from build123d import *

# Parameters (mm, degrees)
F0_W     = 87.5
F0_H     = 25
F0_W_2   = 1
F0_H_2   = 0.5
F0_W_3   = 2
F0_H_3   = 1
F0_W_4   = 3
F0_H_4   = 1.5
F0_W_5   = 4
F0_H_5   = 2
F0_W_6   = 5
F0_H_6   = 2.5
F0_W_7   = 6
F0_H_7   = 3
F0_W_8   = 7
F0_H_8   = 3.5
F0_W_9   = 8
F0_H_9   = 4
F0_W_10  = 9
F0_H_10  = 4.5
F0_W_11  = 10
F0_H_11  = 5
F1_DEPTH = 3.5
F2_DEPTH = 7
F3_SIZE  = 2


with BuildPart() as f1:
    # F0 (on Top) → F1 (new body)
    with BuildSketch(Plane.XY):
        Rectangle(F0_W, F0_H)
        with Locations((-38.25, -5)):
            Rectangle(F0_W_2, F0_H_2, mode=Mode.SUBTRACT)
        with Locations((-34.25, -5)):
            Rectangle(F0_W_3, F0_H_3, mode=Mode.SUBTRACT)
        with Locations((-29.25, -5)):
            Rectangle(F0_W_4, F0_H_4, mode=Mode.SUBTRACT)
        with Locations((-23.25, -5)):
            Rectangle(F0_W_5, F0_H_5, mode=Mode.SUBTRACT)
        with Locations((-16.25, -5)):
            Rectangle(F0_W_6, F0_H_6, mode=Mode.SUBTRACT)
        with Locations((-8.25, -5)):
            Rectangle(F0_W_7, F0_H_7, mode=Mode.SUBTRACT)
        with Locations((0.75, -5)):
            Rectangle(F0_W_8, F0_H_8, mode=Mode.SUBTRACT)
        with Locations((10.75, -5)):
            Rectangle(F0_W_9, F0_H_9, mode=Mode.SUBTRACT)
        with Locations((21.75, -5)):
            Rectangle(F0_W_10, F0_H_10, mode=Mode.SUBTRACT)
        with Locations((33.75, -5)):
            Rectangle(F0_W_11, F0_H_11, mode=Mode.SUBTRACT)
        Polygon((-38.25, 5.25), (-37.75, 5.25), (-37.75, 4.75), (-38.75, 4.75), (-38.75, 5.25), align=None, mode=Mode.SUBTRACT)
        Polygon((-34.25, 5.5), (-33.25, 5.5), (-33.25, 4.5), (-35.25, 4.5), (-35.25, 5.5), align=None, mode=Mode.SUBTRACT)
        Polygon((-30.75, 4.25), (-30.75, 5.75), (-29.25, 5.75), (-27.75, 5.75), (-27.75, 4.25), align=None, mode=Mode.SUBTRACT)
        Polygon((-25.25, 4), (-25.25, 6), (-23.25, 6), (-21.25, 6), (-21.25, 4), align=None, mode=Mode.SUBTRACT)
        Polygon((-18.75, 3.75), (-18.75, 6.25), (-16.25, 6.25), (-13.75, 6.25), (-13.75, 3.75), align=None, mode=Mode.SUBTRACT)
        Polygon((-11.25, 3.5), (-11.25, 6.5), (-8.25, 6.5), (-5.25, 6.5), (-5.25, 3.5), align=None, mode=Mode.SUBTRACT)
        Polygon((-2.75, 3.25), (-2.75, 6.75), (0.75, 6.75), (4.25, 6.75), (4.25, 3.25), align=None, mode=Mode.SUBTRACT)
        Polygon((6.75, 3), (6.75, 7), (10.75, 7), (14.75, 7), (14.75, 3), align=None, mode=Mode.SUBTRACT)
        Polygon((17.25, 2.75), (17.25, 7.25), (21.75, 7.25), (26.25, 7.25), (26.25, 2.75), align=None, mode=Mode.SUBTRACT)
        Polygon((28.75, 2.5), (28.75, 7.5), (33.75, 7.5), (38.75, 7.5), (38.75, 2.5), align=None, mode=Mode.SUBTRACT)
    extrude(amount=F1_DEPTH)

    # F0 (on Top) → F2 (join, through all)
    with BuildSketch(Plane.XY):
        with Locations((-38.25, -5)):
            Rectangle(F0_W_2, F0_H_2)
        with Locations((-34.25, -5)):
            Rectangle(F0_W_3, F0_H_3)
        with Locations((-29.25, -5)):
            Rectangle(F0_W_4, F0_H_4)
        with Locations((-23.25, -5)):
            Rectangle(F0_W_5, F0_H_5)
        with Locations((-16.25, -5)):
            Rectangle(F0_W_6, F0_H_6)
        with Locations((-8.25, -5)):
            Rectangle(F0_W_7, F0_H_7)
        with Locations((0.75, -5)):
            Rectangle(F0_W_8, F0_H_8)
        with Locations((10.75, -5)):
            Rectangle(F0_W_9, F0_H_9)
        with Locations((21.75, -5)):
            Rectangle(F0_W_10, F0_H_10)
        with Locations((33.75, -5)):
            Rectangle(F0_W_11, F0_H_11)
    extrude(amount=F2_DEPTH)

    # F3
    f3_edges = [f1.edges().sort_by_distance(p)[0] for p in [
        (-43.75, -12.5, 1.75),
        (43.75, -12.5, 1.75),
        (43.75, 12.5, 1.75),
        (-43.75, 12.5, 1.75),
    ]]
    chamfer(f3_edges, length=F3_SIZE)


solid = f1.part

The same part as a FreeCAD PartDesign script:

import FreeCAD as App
import Part
import Sketcher

V = App.Vector


def edges_at(feature, points):
    """Names of the edges that pass closest to the given points."""
    edges = feature.Shape.Edges
    near = lambda p: min(range(len(edges)), key=lambda i: edges[i].distToShape(Part.Vertex(*p))[0])
    return sorted({f"Edge{near(p) + 1}" for p in points})

doc = App.newDocument("Part")
body = doc.addObject("PartDesign::Body", "Body")

sketch1 = body.newObject("Sketcher::SketchObject", "Sketch")
sketch1.AttachmentSupport = (doc.getObject("XY_Plane"), [""])
sketch1.MapMode = "FlatFace"
sketch1.addGeometry([
    Part.LineSegment(V(-43.8, 12.5, 0), V(-43.8, -12.5, 0)),
    Part.LineSegment(V(-43.8, -12.5, 0), V(43.8, -12.5, 0)),
    Part.LineSegment(V(43.8, -12.5, 0), V(43.8, 12.5, 0)),
    Part.LineSegment(V(43.8, 12.5, 0), V(-43.8, 12.5, 0)),
    Part.LineSegment(V(-37.8, -5.2, 0), V(-38.8, -5.2, 0)),
    Part.LineSegment(V(-38.8, -5.2, 0), V(-38.8, -4.8, 0)),
    Part.LineSegment(V(-38.8, -4.8, 0), V(-37.8, -4.8, 0)),
    Part.LineSegment(V(-37.8, -4.8, 0), V(-37.8, -5.2, 0)),
    Part.LineSegment(V(-33.2, -5.5, 0), V(-35.2, -5.5, 0)),
    Part.LineSegment(V(-35.2, -5.5, 0), V(-35.2, -4.5, 0)),
    Part.LineSegment(V(-35.2, -4.5, 0), V(-33.2, -4.5, 0)),
    Part.LineSegment(V(-33.2, -4.5, 0), V(-33.2, -5.5, 0)),
    Part.LineSegment(V(-27.8, -5.8, 0), V(-30.8, -5.8, 0)),
    Part.LineSegment(V(-30.8, -5.8, 0), V(-30.8, -4.2, 0)),
    Part.LineSegment(V(-30.8, -4.2, 0), V(-27.8, -4.2, 0)),
    Part.LineSegment(V(-27.8, -4.2, 0), V(-27.8, -5.8, 0)),
    Part.LineSegment(V(-21.2, -6, 0), V(-25.2, -6, 0)),
    Part.LineSegment(V(-25.2, -6, 0), V(-25.2, -4, 0)),
    Part.LineSegment(V(-25.2, -4, 0), V(-21.2, -4, 0)),
    Part.LineSegment(V(-21.2, -4, 0), V(-21.2, -6, 0)),
    Part.LineSegment(V(-13.8, -6.2, 0), V(-18.8, -6.2, 0)),
    Part.LineSegment(V(-18.8, -6.2, 0), V(-18.8, -3.8, 0)),
    Part.LineSegment(V(-18.8, -3.8, 0), V(-13.8, -3.8, 0)),
    Part.LineSegment(V(-13.8, -3.8, 0), V(-13.8, -6.2, 0)),
    Part.LineSegment(V(-5.2, -6.5, 0), V(-11.2, -6.5, 0)),
    Part.LineSegment(V(-11.2, -6.5, 0), V(-11.2, -3.5, 0)),
    Part.LineSegment(V(-11.2, -3.5, 0), V(-5.2, -3.5, 0)),
    Part.LineSegment(V(-5.2, -3.5, 0), V(-5.2, -6.5, 0)),
    Part.LineSegment(V(4.2, -6.8, 0), V(-2.8, -6.8, 0)),
    Part.LineSegment(V(-2.8, -6.8, 0), V(-2.8, -3.2, 0)),
    Part.LineSegment(V(-2.8, -3.2, 0), V(4.2, -3.2, 0)),
    Part.LineSegment(V(4.2, -3.2, 0), V(4.2, -6.8, 0)),
    Part.LineSegment(V(14.8, -7, 0), V(6.8, -7, 0)),
    Part.LineSegment(V(6.8, -7, 0), V(6.8, -3, 0)),
    Part.LineSegment(V(6.8, -3, 0), V(14.8, -3, 0)),
    Part.LineSegment(V(14.8, -3, 0), V(14.8, -7, 0)),
    Part.LineSegment(V(26.2, -7.2, 0), V(17.2, -7.2, 0)),
    Part.LineSegment(V(17.2, -7.2, 0), V(17.2, -2.8, 0)),
    Part.LineSegment(V(17.2, -2.8, 0), V(26.2, -2.8, 0)),
    Part.LineSegment(V(26.2, -2.8, 0), V(26.2, -7.2, 0)),
    Part.LineSegment(V(38.8, -7.5, 0), V(28.8, -7.5, 0)),
    Part.LineSegment(V(28.8, -7.5, 0), V(28.8, -2.5, 0)),
    Part.LineSegment(V(28.8, -2.5, 0), V(38.8, -2.5, 0)),
    Part.LineSegment(V(38.8, -2.5, 0), V(38.8, -7.5, 0)),
    Part.LineSegment(V(-38.8, 5.2, 0), V(-37.8, 5.2, 0)),
    Part.LineSegment(V(-37.8, 5.2, 0), V(-37.8, 4.8, 0)),
    Part.LineSegment(V(-37.8, 4.8, 0), V(-38.8, 4.8, 0)),
    Part.LineSegment(V(-38.8, 4.8, 0), V(-38.8, 5.2, 0)),
    Part.LineSegment(V(-35.2, 5.5, 0), V(-33.2, 5.5, 0)),
    Part.LineSegment(V(-33.2, 5.5, 0), V(-33.2, 4.5, 0)),
    Part.LineSegment(V(-33.2, 4.5, 0), V(-35.2, 4.5, 0)),
    Part.LineSegment(V(-35.2, 4.5, 0), V(-35.2, 5.5, 0)),
    Part.LineSegment(V(-27.8, 4.2, 0), V(-30.8, 4.2, 0)),
    Part.LineSegment(V(-30.8, 4.2, 0), V(-30.8, 5.8, 0)),
    Part.LineSegment(V(-30.8, 5.8, 0), V(-27.8, 5.8, 0)),
    Part.LineSegment(V(-27.8, 5.8, 0), V(-27.8, 4.2, 0)),
    Part.LineSegment(V(-21.2, 4, 0), V(-25.2, 4, 0)),
    Part.LineSegment(V(-25.2, 4, 0), V(-25.2, 6, 0)),
    Part.LineSegment(V(-25.2, 6, 0), V(-21.2, 6, 0)),
    Part.LineSegment(V(-21.2, 6, 0), V(-21.2, 4, 0)),
    Part.LineSegment(V(-13.8, 3.8, 0), V(-18.8, 3.8, 0)),
    Part.LineSegment(V(-18.8, 3.8, 0), V(-18.8, 6.2, 0)),
    Part.LineSegment(V(-18.8, 6.2, 0), V(-13.8, 6.2, 0)),
    Part.LineSegment(V(-13.8, 6.2, 0), V(-13.8, 3.8, 0)),
    Part.LineSegment(V(-5.2, 3.5, 0), V(-11.2, 3.5, 0)),
    Part.LineSegment(V(-11.2, 3.5, 0), V(-11.2, 6.5, 0)),
    Part.LineSegment(V(-11.2, 6.5, 0), V(-5.2, 6.5, 0)),
    Part.LineSegment(V(-5.2, 6.5, 0), V(-5.2, 3.5, 0)),
    Part.LineSegment(V(4.2, 3.2, 0), V(-2.8, 3.2, 0)),
    Part.LineSegment(V(-2.8, 3.2, 0), V(-2.8, 6.8, 0)),
    Part.LineSegment(V(-2.8, 6.8, 0), V(4.2, 6.8, 0)),
    Part.LineSegment(V(4.2, 6.8, 0), V(4.2, 3.2, 0)),
    Part.LineSegment(V(14.8, 3, 0), V(6.8, 3, 0)),
    Part.LineSegment(V(6.8, 3, 0), V(6.8, 7, 0)),
    Part.LineSegment(V(6.8, 7, 0), V(14.8, 7, 0)),
    Part.LineSegment(V(14.8, 7, 0), V(14.8, 3, 0)),
    Part.LineSegment(V(26.2, 2.8, 0), V(17.2, 2.8, 0)),
    Part.LineSegment(V(17.2, 2.8, 0), V(17.2, 7.2, 0)),
    Part.LineSegment(V(17.2, 7.2, 0), V(26.2, 7.2, 0)),
    Part.LineSegment(V(26.2, 7.2, 0), V(26.2, 2.8, 0)),
    Part.LineSegment(V(38.8, 2.5, 0), V(28.8, 2.5, 0)),
    Part.LineSegment(V(28.8, 2.5, 0), V(28.8, 7.5, 0)),
    Part.LineSegment(V(28.8, 7.5, 0), V(38.8, 7.5, 0)),
    Part.LineSegment(V(38.8, 7.5, 0), V(38.8, 2.5, 0)),
], False)
sketch1.addConstraint([
    Sketcher.Constraint("Coincident", 0, 2, 1, 1),
    Sketcher.Constraint("Coincident", 1, 2, 2, 1),
    Sketcher.Constraint("Coincident", 2, 2, 3, 1),
    Sketcher.Constraint("Coincident", 3, 2, 0, 1),
    Sketcher.Constraint("Coincident", 4, 2, 5, 1),
    Sketcher.Constraint("Coincident", 5, 2, 6, 1),
    Sketcher.Constraint("Coincident", 6, 2, 7, 1),
    Sketcher.Constraint("Coincident", 7, 2, 4, 1),
    Sketcher.Constraint("Coincident", 8, 2, 9, 1),
    Sketcher.Constraint("Coincident", 9, 2, 10, 1),
    Sketcher.Constraint("Coincident", 10, 2, 11, 1),
    Sketcher.Constraint("Coincident", 11, 2, 8, 1),
    Sketcher.Constraint("Coincident", 12, 2, 13, 1),
    Sketcher.Constraint("Coincident", 13, 2, 14, 1),
    Sketcher.Constraint("Coincident", 14, 2, 15, 1),
    Sketcher.Constraint("Coincident", 15, 2, 12, 1),
    Sketcher.Constraint("Coincident", 16, 2, 17, 1),
    Sketcher.Constraint("Coincident", 17, 2, 18, 1),
    Sketcher.Constraint("Coincident", 18, 2, 19, 1),
    Sketcher.Constraint("Coincident", 19, 2, 16, 1),
    Sketcher.Constraint("Coincident", 20, 2, 21, 1),
    Sketcher.Constraint("Coincident", 21, 2, 22, 1),
    Sketcher.Constraint("Coincident", 22, 2, 23, 1),
    Sketcher.Constraint("Coincident", 23, 2, 20, 1),
    Sketcher.Constraint("Coincident", 24, 2, 25, 1),
    Sketcher.Constraint("Coincident", 25, 2, 26, 1),
    Sketcher.Constraint("Coincident", 26, 2, 27, 1),
    Sketcher.Constraint("Coincident", 27, 2, 24, 1),
    Sketcher.Constraint("Coincident", 28, 2, 29, 1),
    Sketcher.Constraint("Coincident", 29, 2, 30, 1),
    Sketcher.Constraint("Coincident", 30, 2, 31, 1),
    Sketcher.Constraint("Coincident", 31, 2, 28, 1),
    Sketcher.Constraint("Coincident", 32, 2, 33, 1),
    Sketcher.Constraint("Coincident", 33, 2, 34, 1),
    Sketcher.Constraint("Coincident", 34, 2, 35, 1),
    Sketcher.Constraint("Coincident", 35, 2, 32, 1),
    Sketcher.Constraint("Coincident", 36, 2, 37, 1),
    Sketcher.Constraint("Coincident", 37, 2, 38, 1),
    Sketcher.Constraint("Coincident", 38, 2, 39, 1),
    Sketcher.Constraint("Coincident", 39, 2, 36, 1),
    Sketcher.Constraint("Coincident", 40, 2, 41, 1),
    Sketcher.Constraint("Coincident", 41, 2, 42, 1),
    Sketcher.Constraint("Coincident", 42, 2, 43, 1),
    Sketcher.Constraint("Coincident", 43, 2, 40, 1),
    Sketcher.Constraint("Coincident", 44, 2, 45, 1),
    Sketcher.Constraint("Coincident", 45, 2, 46, 1),
    Sketcher.Constraint("Coincident", 46, 2, 47, 1),
    Sketcher.Constraint("Coincident", 47, 2, 44, 1),
    Sketcher.Constraint("Coincident", 48, 2, 49, 1),
    Sketcher.Constraint("Coincident", 49, 2, 50, 1),
    Sketcher.Constraint("Coincident", 50, 2, 51, 1),
    Sketcher.Constraint("Coincident", 51, 2, 48, 1),
    Sketcher.Constraint("Coincident", 52, 2, 53, 1),
    Sketcher.Constraint("Coincident", 53, 2, 54, 1),
    Sketcher.Constraint("Coincident", 54, 2, 55, 1),
    Sketcher.Constraint("Coincident", 55, 2, 52, 1),
    Sketcher.Constraint("Coincident", 56, 2, 57, 1),
    Sketcher.Constraint("Coincident", 57, 2, 58, 1),
    Sketcher.Constraint("Coincident", 58, 2, 59, 1),
    Sketcher.Constraint("Coincident", 59, 2, 56, 1),
    Sketcher.Constraint("Coincident", 60, 2, 61, 1),
    Sketcher.Constraint("Coincident", 61, 2, 62, 1),
    Sketcher.Constraint("Coincident", 62, 2, 63, 1),
    Sketcher.Constraint("Coincident", 63, 2, 60, 1),
    Sketcher.Constraint("Coincident", 64, 2, 65, 1),
    Sketcher.Constraint("Coincident", 65, 2, 66, 1),
    Sketcher.Constraint("Coincident", 66, 2, 67, 1),
    Sketcher.Constraint("Coincident", 67, 2, 64, 1),
    Sketcher.Constraint("Coincident", 68, 2, 69, 1),
    Sketcher.Constraint("Coincident", 69, 2, 70, 1),
    Sketcher.Constraint("Coincident", 70, 2, 71, 1),
    Sketcher.Constraint("Coincident", 71, 2, 68, 1),
    Sketcher.Constraint("Coincident", 72, 2, 73, 1),
    Sketcher.Constraint("Coincident", 73, 2, 74, 1),
    Sketcher.Constraint("Coincident", 74, 2, 75, 1),
    Sketcher.Constraint("Coincident", 75, 2, 72, 1),
    Sketcher.Constraint("Coincident", 76, 2, 77, 1),
    Sketcher.Constraint("Coincident", 77, 2, 78, 1),
    Sketcher.Constraint("Coincident", 78, 2, 79, 1),
    Sketcher.Constraint("Coincident", 79, 2, 76, 1),
    Sketcher.Constraint("Coincident", 80, 2, 81, 1),
    Sketcher.Constraint("Coincident", 81, 2, 82, 1),
    Sketcher.Constraint("Coincident", 82, 2, 83, 1),
    Sketcher.Constraint("Coincident", 83, 2, 80, 1),
    Sketcher.Constraint("Vertical", 0),
    Sketcher.Constraint("Horizontal", 1),
    Sketcher.Constraint("Vertical", 2),
    Sketcher.Constraint("Horizontal", 3),
    Sketcher.Constraint("Horizontal", 4),
    Sketcher.Constraint("Vertical", 5),
    Sketcher.Constraint("Horizontal", 6),
    Sketcher.Constraint("Vertical", 7),
    Sketcher.Constraint("Horizontal", 8),
    Sketcher.Constraint("Vertical", 9),
    Sketcher.Constraint("Horizontal", 10),
    Sketcher.Constraint("Vertical", 11),
    Sketcher.Constraint("Horizontal", 12),
    Sketcher.Constraint("Vertical", 13),
    Sketcher.Constraint("Horizontal", 14),
    Sketcher.Constraint("Vertical", 15),
    Sketcher.Constraint("Horizontal", 16),
    Sketcher.Constraint("Vertical", 17),
    Sketcher.Constraint("Horizontal", 18),
    Sketcher.Constraint("Vertical", 19),
    Sketcher.Constraint("Horizontal", 20),
    Sketcher.Constraint("Vertical", 21),
    Sketcher.Constraint("Horizontal", 22),
    Sketcher.Constraint("Vertical", 23),
    Sketcher.Constraint("Horizontal", 24),
    Sketcher.Constraint("Vertical", 25),
    Sketcher.Constraint("Horizontal", 26),
    Sketcher.Constraint("Vertical", 27),
    Sketcher.Constraint("Horizontal", 28),
    Sketcher.Constraint("Vertical", 29),
    Sketcher.Constraint("Horizontal", 30),
    Sketcher.Constraint("Vertical", 31),
    Sketcher.Constraint("Horizontal", 32),
    Sketcher.Constraint("Vertical", 33),
    Sketcher.Constraint("Horizontal", 34),
    Sketcher.Constraint("Vertical", 35),
    Sketcher.Constraint("Horizontal", 36),
    Sketcher.Constraint("Vertical", 37),
    Sketcher.Constraint("Horizontal", 38),
    Sketcher.Constraint("Vertical", 39),
    Sketcher.Constraint("Horizontal", 40),
    Sketcher.Constraint("Vertical", 41),
    Sketcher.Constraint("Horizontal", 42),
    Sketcher.Constraint("Vertical", 43),
    Sketcher.Constraint("Horizontal", 44),
    Sketcher.Constraint("Vertical", 45),
    Sketcher.Constraint("Horizontal", 46),
    Sketcher.Constraint("Vertical", 47),
    Sketcher.Constraint("Horizontal", 48),
    Sketcher.Constraint("Vertical", 49),
    Sketcher.Constraint("Horizontal", 50),
    Sketcher.Constraint("Vertical", 51),
    Sketcher.Constraint("Horizontal", 52),
    Sketcher.Constraint("Vertical", 53),
    Sketcher.Constraint("Horizontal", 54),
    Sketcher.Constraint("Vertical", 55),
    Sketcher.Constraint("Horizontal", 56),
    Sketcher.Constraint("Vertical", 57),
    Sketcher.Constraint("Horizontal", 58),
    Sketcher.Constraint("Vertical", 59),
    Sketcher.Constraint("Horizontal", 60),
    Sketcher.Constraint("Vertical", 61),
    Sketcher.Constraint("Horizontal", 62),
    Sketcher.Constraint("Vertical", 63),
    Sketcher.Constraint("Horizontal", 64),
    Sketcher.Constraint("Vertical", 65),
    Sketcher.Constraint("Horizontal", 66),
    Sketcher.Constraint("Vertical", 67),
    Sketcher.Constraint("Horizontal", 68),
    Sketcher.Constraint("Vertical", 69),
    Sketcher.Constraint("Horizontal", 70),
    Sketcher.Constraint("Vertical", 71),
    Sketcher.Constraint("Horizontal", 72),
    Sketcher.Constraint("Vertical", 73),
    Sketcher.Constraint("Horizontal", 74),
    Sketcher.Constraint("Vertical", 75),
    Sketcher.Constraint("Horizontal", 76),
    Sketcher.Constraint("Vertical", 77),
    Sketcher.Constraint("Horizontal", 78),
    Sketcher.Constraint("Vertical", 79),
    Sketcher.Constraint("Horizontal", 80),
    Sketcher.Constraint("Vertical", 81),
    Sketcher.Constraint("Horizontal", 82),
    Sketcher.Constraint("Vertical", 83),
    Sketcher.Constraint("Symmetric", 0, 2, 2, 2, -1, 1),
    Sketcher.Constraint("Symmetric", 7, 2, 44, 2, -1),
    Sketcher.Constraint("Symmetric", 5, 2, 46, 2, -1),
    Sketcher.Constraint("Symmetric", 11, 2, 48, 2, -1),
    Sketcher.Constraint("Symmetric", 9, 2, 50, 2, -1),
    Sketcher.Constraint("Symmetric", 13, 2, 52, 2, -1),
    Sketcher.Constraint("Symmetric", 15, 2, 54, 2, -1),
    Sketcher.Constraint("Symmetric", 17, 2, 56, 2, -1),
    Sketcher.Constraint("Symmetric", 19, 2, 58, 2, -1),
    Sketcher.Constraint("Symmetric", 21, 2, 60, 2, -1),
    Sketcher.Constraint("Symmetric", 23, 2, 62, 2, -1),
    Sketcher.Constraint("Symmetric", 25, 2, 64, 2, -1),
    Sketcher.Constraint("Symmetric", 27, 2, 66, 2, -1),
    Sketcher.Constraint("Symmetric", 29, 2, 68, 2, -1),
    Sketcher.Constraint("Symmetric", 31, 2, 70, 2, -1),
    Sketcher.Constraint("Symmetric", 33, 2, 72, 2, -1),
    Sketcher.Constraint("Symmetric", 35, 2, 74, 2, -1),
    Sketcher.Constraint("Symmetric", 37, 2, 76, 2, -1),
    Sketcher.Constraint("Symmetric", 39, 2, 78, 2, -1),
    Sketcher.Constraint("Symmetric", 41, 2, 80, 2, -1),
    Sketcher.Constraint("Symmetric", 43, 2, 82, 2, -1),
    Sketcher.Constraint("Equal", 46, 9),
    Sketcher.Constraint("Equal", 50, 17),
    Sketcher.Constraint("Equal", 54, 25),
    Sketcher.Constraint("Equal", 58, 33),
    Sketcher.Constraint("Equal", 62, 41),
    Sketcher.Constraint("DistanceX", 4, 2, 4, 1, 1.0),
    Sketcher.Constraint("DistanceX", 8, 2, 8, 1, 2.0),
    Sketcher.Constraint("DistanceX", 12, 2, 12, 1, 3.0),
    Sketcher.Constraint("DistanceX", 16, 2, 16, 1, 4.0),
    Sketcher.Constraint("DistanceX", 20, 2, 20, 1, 5.0),
    Sketcher.Constraint("DistanceX", 24, 2, 24, 1, 6.0),
    Sketcher.Constraint("DistanceX", 28, 2, 28, 1, 7.0),
    Sketcher.Constraint("DistanceX", 32, 2, 32, 1, 8.0),
    Sketcher.Constraint("DistanceX", 36, 2, 36, 1, 9.0),
    Sketcher.Constraint("DistanceX", 40, 2, 40, 1, 10.0),
    Sketcher.Constraint("DistanceY", 0, 2, 0, 1, 25.0),
    Sketcher.Constraint("DistanceX", 1, 1, 1, 2, 87.5),
    Sketcher.Constraint("DistanceY", 5, 1, 5, 2, 0.5),
    Sketcher.Constraint("DistanceY", 13, 1, 13, 2, 1.5),
    Sketcher.Constraint("DistanceY", 21, 1, 21, 2, 2.5),
    Sketcher.Constraint("DistanceY", 29, 1, 29, 2, 3.5),
    Sketcher.Constraint("DistanceY", 37, 1, 37, 2, 4.5),
    Sketcher.Constraint("DistanceY", 16, 2, -1, 1, 6.0),
    Sketcher.Constraint("DistanceY", 32, 2, -1, 1, 7.0),
    Sketcher.Constraint("DistanceY", 8, 2, -1, 1, 5.5),
    Sketcher.Constraint("DistanceY", 24, 2, -1, 1, 6.5),
    Sketcher.Constraint("DistanceY", 40, 2, -1, 1, 7.5),
    Sketcher.Constraint("DistanceX", 4, 2, -1, 1, 38.75),
    Sketcher.Constraint("DistanceY", 4, 2, -1, 1, 5.25),
    Sketcher.Constraint("DistanceX", 8, 2, -1, 1, 35.25),
    Sketcher.Constraint("DistanceX", 12, 2, -1, 1, 30.75),
    Sketcher.Constraint("DistanceY", 12, 2, -1, 1, 5.75),
    Sketcher.Constraint("DistanceX", 16, 2, -1, 1, 25.25),
    Sketcher.Constraint("DistanceX", 20, 2, -1, 1, 18.75),
    Sketcher.Constraint("DistanceY", 20, 2, -1, 1, 6.25),
    Sketcher.Constraint("DistanceX", 24, 2, -1, 1, 11.25),
    Sketcher.Constraint("DistanceX", 28, 2, -1, 1, 2.75),
    Sketcher.Constraint("DistanceY", 28, 2, -1, 1, 6.75),
    Sketcher.Constraint("DistanceX", -1, 1, 32, 2, 6.75),
    Sketcher.Constraint("DistanceX", -1, 1, 36, 2, 17.25),
    Sketcher.Constraint("DistanceY", 36, 2, -1, 1, 7.25),
    Sketcher.Constraint("DistanceX", -1, 1, 40, 2, 28.75),
])
pad1 = body.newObject("PartDesign::Pad", "Pad")
pad1.Profile = sketch1
pad1.Length = 3.5

sketch2 = body.newObject("Sketcher::SketchObject", "Sketch001")
sketch2.AttachmentSupport = (doc.getObject("XY_Plane"), [""])
sketch2.MapMode = "FlatFace"
sketch2.addGeometry([
    Part.LineSegment(V(-38.8, -4.8, 0), V(-38.8, -5.2, 0)),
    Part.LineSegment(V(-38.8, -5.2, 0), V(-37.8, -5.2, 0)),
    Part.LineSegment(V(-37.8, -5.2, 0), V(-37.8, -4.8, 0)),
    Part.LineSegment(V(-37.8, -4.8, 0), V(-38.8, -4.8, 0)),
    Part.LineSegment(V(-35.2, -4.5, 0), V(-35.2, -5.5, 0)),
    Part.LineSegment(V(-35.2, -5.5, 0), V(-33.2, -5.5, 0)),
    Part.LineSegment(V(-33.2, -5.5, 0), V(-33.2, -4.5, 0)),
    Part.LineSegment(V(-33.2, -4.5, 0), V(-35.2, -4.5, 0)),
    Part.LineSegment(V(-30.8, -4.2, 0), V(-30.8, -5.8, 0)),
    Part.LineSegment(V(-30.8, -5.8, 0), V(-27.8, -5.8, 0)),
    Part.LineSegment(V(-27.8, -5.8, 0), V(-27.8, -4.2, 0)),
    Part.LineSegment(V(-27.8, -4.2, 0), V(-30.8, -4.2, 0)),
    Part.LineSegment(V(-25.2, -4, 0), V(-25.2, -6, 0)),
    Part.LineSegment(V(-25.2, -6, 0), V(-21.2, -6, 0)),
    Part.LineSegment(V(-21.2, -6, 0), V(-21.2, -4, 0)),
    Part.LineSegment(V(-21.2, -4, 0), V(-25.2, -4, 0)),
    Part.LineSegment(V(-18.8, -3.8, 0), V(-18.8, -6.2, 0)),
    Part.LineSegment(V(-18.8, -6.2, 0), V(-13.8, -6.2, 0)),
    Part.LineSegment(V(-13.8, -6.2, 0), V(-13.8, -3.8, 0)),
    Part.LineSegment(V(-13.8, -3.8, 0), V(-18.8, -3.8, 0)),
    Part.LineSegment(V(-11.2, -3.5, 0), V(-11.2, -6.5, 0)),
    Part.LineSegment(V(-11.2, -6.5, 0), V(-5.2, -6.5, 0)),
    Part.LineSegment(V(-5.2, -6.5, 0), V(-5.2, -3.5, 0)),
    Part.LineSegment(V(-5.2, -3.5, 0), V(-11.2, -3.5, 0)),
    Part.LineSegment(V(-2.8, -3.2, 0), V(-2.8, -6.8, 0)),
    Part.LineSegment(V(-2.8, -6.8, 0), V(4.2, -6.8, 0)),
    Part.LineSegment(V(4.2, -6.8, 0), V(4.2, -3.2, 0)),
    Part.LineSegment(V(4.2, -3.2, 0), V(-2.8, -3.2, 0)),
    Part.LineSegment(V(6.8, -3, 0), V(6.8, -7, 0)),
    Part.LineSegment(V(6.8, -7, 0), V(14.8, -7, 0)),
    Part.LineSegment(V(14.8, -7, 0), V(14.8, -3, 0)),
    Part.LineSegment(V(14.8, -3, 0), V(6.8, -3, 0)),
    Part.LineSegment(V(17.2, -2.8, 0), V(17.2, -7.2, 0)),
    Part.LineSegment(V(17.2, -7.2, 0), V(26.2, -7.2, 0)),
    Part.LineSegment(V(26.2, -7.2, 0), V(26.2, -2.8, 0)),
    Part.LineSegment(V(26.2, -2.8, 0), V(17.2, -2.8, 0)),
    Part.LineSegment(V(28.8, -2.5, 0), V(28.8, -7.5, 0)),
    Part.LineSegment(V(28.8, -7.5, 0), V(38.8, -7.5, 0)),
    Part.LineSegment(V(38.8, -7.5, 0), V(38.8, -2.5, 0)),
    Part.LineSegment(V(38.8, -2.5, 0), V(28.8, -2.5, 0)),
], False)
sketch2.addConstraint([
    Sketcher.Constraint("Coincident", 0, 2, 1, 1),
    Sketcher.Constraint("Coincident", 1, 2, 2, 1),
    Sketcher.Constraint("Coincident", 2, 2, 3, 1),
    Sketcher.Constraint("Coincident", 3, 2, 0, 1),
    Sketcher.Constraint("Coincident", 4, 2, 5, 1),
    Sketcher.Constraint("Coincident", 5, 2, 6, 1),
    Sketcher.Constraint("Coincident", 6, 2, 7, 1),
    Sketcher.Constraint("Coincident", 7, 2, 4, 1),
    Sketcher.Constraint("Coincident", 8, 2, 9, 1),
    Sketcher.Constraint("Coincident", 9, 2, 10, 1),
    Sketcher.Constraint("Coincident", 10, 2, 11, 1),
    Sketcher.Constraint("Coincident", 11, 2, 8, 1),
    Sketcher.Constraint("Coincident", 12, 2, 13, 1),
    Sketcher.Constraint("Coincident", 13, 2, 14, 1),
    Sketcher.Constraint("Coincident", 14, 2, 15, 1),
    Sketcher.Constraint("Coincident", 15, 2, 12, 1),
    Sketcher.Constraint("Coincident", 16, 2, 17, 1),
    Sketcher.Constraint("Coincident", 17, 2, 18, 1),
    Sketcher.Constraint("Coincident", 18, 2, 19, 1),
    Sketcher.Constraint("Coincident", 19, 2, 16, 1),
    Sketcher.Constraint("Coincident", 20, 2, 21, 1),
    Sketcher.Constraint("Coincident", 21, 2, 22, 1),
    Sketcher.Constraint("Coincident", 22, 2, 23, 1),
    Sketcher.Constraint("Coincident", 23, 2, 20, 1),
    Sketcher.Constraint("Coincident", 24, 2, 25, 1),
    Sketcher.Constraint("Coincident", 25, 2, 26, 1),
    Sketcher.Constraint("Coincident", 26, 2, 27, 1),
    Sketcher.Constraint("Coincident", 27, 2, 24, 1),
    Sketcher.Constraint("Coincident", 28, 2, 29, 1),
    Sketcher.Constraint("Coincident", 29, 2, 30, 1),
    Sketcher.Constraint("Coincident", 30, 2, 31, 1),
    Sketcher.Constraint("Coincident", 31, 2, 28, 1),
    Sketcher.Constraint("Coincident", 32, 2, 33, 1),
    Sketcher.Constraint("Coincident", 33, 2, 34, 1),
    Sketcher.Constraint("Coincident", 34, 2, 35, 1),
    Sketcher.Constraint("Coincident", 35, 2, 32, 1),
    Sketcher.Constraint("Coincident", 36, 2, 37, 1),
    Sketcher.Constraint("Coincident", 37, 2, 38, 1),
    Sketcher.Constraint("Coincident", 38, 2, 39, 1),
    Sketcher.Constraint("Coincident", 39, 2, 36, 1),
    Sketcher.Constraint("Vertical", 0),
    Sketcher.Constraint("Horizontal", 1),
    Sketcher.Constraint("Vertical", 2),
    Sketcher.Constraint("Horizontal", 3),
    Sketcher.Constraint("Vertical", 4),
    Sketcher.Constraint("Horizontal", 5),
    Sketcher.Constraint("Vertical", 6),
    Sketcher.Constraint("Horizontal", 7),
    Sketcher.Constraint("Vertical", 8),
    Sketcher.Constraint("Horizontal", 9),
    Sketcher.Constraint("Vertical", 10),
    Sketcher.Constraint("Horizontal", 11),
    Sketcher.Constraint("Vertical", 12),
    Sketcher.Constraint("Horizontal", 13),
    Sketcher.Constraint("Vertical", 14),
    Sketcher.Constraint("Horizontal", 15),
    Sketcher.Constraint("Vertical", 16),
    Sketcher.Constraint("Horizontal", 17),
    Sketcher.Constraint("Vertical", 18),
    Sketcher.Constraint("Horizontal", 19),
    Sketcher.Constraint("Vertical", 20),
    Sketcher.Constraint("Horizontal", 21),
    Sketcher.Constraint("Vertical", 22),
    Sketcher.Constraint("Horizontal", 23),
    Sketcher.Constraint("Vertical", 24),
    Sketcher.Constraint("Horizontal", 25),
    Sketcher.Constraint("Vertical", 26),
    Sketcher.Constraint("Horizontal", 27),
    Sketcher.Constraint("Vertical", 28),
    Sketcher.Constraint("Horizontal", 29),
    Sketcher.Constraint("Vertical", 30),
    Sketcher.Constraint("Horizontal", 31),
    Sketcher.Constraint("Vertical", 32),
    Sketcher.Constraint("Horizontal", 33),
    Sketcher.Constraint("Vertical", 34),
    Sketcher.Constraint("Horizontal", 35),
    Sketcher.Constraint("Vertical", 36),
    Sketcher.Constraint("Horizontal", 37),
    Sketcher.Constraint("Vertical", 38),
    Sketcher.Constraint("Horizontal", 39),
    Sketcher.Constraint("Equal", 3, 4),
    Sketcher.Constraint("Equal", 7, 12),
    Sketcher.Constraint("Equal", 11, 20),
    Sketcher.Constraint("Equal", 15, 28),
    Sketcher.Constraint("Equal", 19, 36),
    Sketcher.Constraint("DistanceX", 1, 1, 1, 2, 1.0),
    Sketcher.Constraint("DistanceX", 5, 1, 5, 2, 2.0),
    Sketcher.Constraint("DistanceX", 9, 1, 9, 2, 3.0),
    Sketcher.Constraint("DistanceX", 13, 1, 13, 2, 4.0),
    Sketcher.Constraint("DistanceX", 17, 1, 17, 2, 5.0),
    Sketcher.Constraint("DistanceX", 21, 1, 21, 2, 6.0),
    Sketcher.Constraint("DistanceX", 25, 1, 25, 2, 7.0),
    Sketcher.Constraint("DistanceX", 29, 1, 29, 2, 8.0),
    Sketcher.Constraint("DistanceX", 33, 1, 33, 2, 9.0),
    Sketcher.Constraint("DistanceX", 37, 1, 37, 2, 10.0),
    Sketcher.Constraint("DistanceY", 0, 2, 0, 1, 0.5),
    Sketcher.Constraint("DistanceY", 8, 2, 8, 1, 1.5),
    Sketcher.Constraint("DistanceY", 16, 2, 16, 1, 2.5),
    Sketcher.Constraint("DistanceY", 24, 2, 24, 1, 3.5),
    Sketcher.Constraint("DistanceY", 32, 2, 32, 1, 4.5),
    Sketcher.Constraint("DistanceY", 12, 2, -1, 1, 6.0),
    Sketcher.Constraint("DistanceY", 28, 2, -1, 1, 7.0),
    Sketcher.Constraint("DistanceX", 1, 2, 8, 2, 7.0),
    Sketcher.Constraint("DistanceX", 5, 2, 12, 2, 8.0),
    Sketcher.Constraint("DistanceX", 9, 2, 16, 2, 9.0),
    Sketcher.Constraint("DistanceX", 13, 2, 20, 2, 10.0),
    Sketcher.Constraint("DistanceX", 17, 2, 24, 2, 11.0),
    Sketcher.Constraint("DistanceX", 21, 2, 28, 2, 12.0),
    Sketcher.Constraint("DistanceX", 25, 2, 32, 2, 13.0),
    Sketcher.Constraint("DistanceX", 29, 2, 36, 2, 14.0),
    Sketcher.Constraint("DistanceY", 4, 2, -1, 1, 5.5),
    Sketcher.Constraint("DistanceY", 20, 2, -1, 1, 6.5),
    Sketcher.Constraint("DistanceY", 36, 2, -1, 1, 7.5),
    Sketcher.Constraint("DistanceX", 1, 2, 4, 2, 2.5),
    Sketcher.Constraint("DistanceY", 8, 2, 1, 2, 0.5),
    Sketcher.Constraint("DistanceY", 16, 2, 9, 2, 0.5),
    Sketcher.Constraint("DistanceY", 24, 2, 17, 2, 0.5),
    Sketcher.Constraint("DistanceY", 32, 2, 25, 2, 0.5),
    Sketcher.Constraint("DistanceX", 0, 2, -1, 1, 38.75),
    Sketcher.Constraint("DistanceY", 0, 2, -1, 1, 5.25),
])
pad2 = body.newObject("PartDesign::Pad", "Pad001")
pad2.Profile = sketch2
pad2.Length = 7
doc.recompute()

chamfer = body.newObject("PartDesign::Chamfer", "Chamfer")
chamfer.Base = (pad2, edges_at(pad2, [
    (-43.75, -12.5, 1.75),
    (43.75, -12.5, 1.75),
    (43.75, 12.5, 1.75),
    (-43.75, 12.5, 1.75),
]))
chamfer.Size = 2

doc.recompute()
